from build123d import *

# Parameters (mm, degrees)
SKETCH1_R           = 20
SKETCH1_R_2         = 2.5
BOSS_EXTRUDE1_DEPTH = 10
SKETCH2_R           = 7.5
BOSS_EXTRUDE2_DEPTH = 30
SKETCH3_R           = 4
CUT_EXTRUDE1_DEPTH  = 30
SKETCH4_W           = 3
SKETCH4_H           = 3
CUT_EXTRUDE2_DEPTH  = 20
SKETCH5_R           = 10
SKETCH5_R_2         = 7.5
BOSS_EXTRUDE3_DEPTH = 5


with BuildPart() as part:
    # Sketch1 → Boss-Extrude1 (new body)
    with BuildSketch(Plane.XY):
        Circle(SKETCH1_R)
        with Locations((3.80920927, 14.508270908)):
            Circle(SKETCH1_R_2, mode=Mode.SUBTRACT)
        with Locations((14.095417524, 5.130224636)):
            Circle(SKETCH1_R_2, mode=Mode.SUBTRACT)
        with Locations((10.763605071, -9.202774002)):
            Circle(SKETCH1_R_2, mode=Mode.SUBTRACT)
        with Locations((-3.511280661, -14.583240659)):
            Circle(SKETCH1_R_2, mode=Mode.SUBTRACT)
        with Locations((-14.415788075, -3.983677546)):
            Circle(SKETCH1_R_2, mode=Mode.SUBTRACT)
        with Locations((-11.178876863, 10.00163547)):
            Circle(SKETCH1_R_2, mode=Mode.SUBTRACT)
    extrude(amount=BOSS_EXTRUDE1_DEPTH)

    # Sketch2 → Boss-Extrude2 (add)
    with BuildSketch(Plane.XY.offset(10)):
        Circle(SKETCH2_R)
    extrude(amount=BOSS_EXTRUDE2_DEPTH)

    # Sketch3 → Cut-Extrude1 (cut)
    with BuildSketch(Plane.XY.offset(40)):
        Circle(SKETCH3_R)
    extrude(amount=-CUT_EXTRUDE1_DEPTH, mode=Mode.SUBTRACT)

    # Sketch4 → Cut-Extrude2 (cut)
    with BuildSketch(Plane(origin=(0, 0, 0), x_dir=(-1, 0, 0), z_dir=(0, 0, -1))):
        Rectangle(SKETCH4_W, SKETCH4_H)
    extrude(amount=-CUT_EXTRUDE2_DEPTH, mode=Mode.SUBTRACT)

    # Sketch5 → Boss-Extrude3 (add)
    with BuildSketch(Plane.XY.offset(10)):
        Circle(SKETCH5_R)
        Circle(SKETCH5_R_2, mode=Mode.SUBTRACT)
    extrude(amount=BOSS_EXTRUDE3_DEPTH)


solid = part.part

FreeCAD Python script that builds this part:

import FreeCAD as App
import Part
import Sketcher


def add_polygon(sketch, points):
    """Adds a closed chain of lines whose ends are joined by coincident constraints."""
    first, n = sketch.GeometryCount, len(points)
    for a, b in zip(points, points[1:] + points[:1]):
        sketch.addGeometry(Part.LineSegment(App.Vector(*a, 0), App.Vector(*b, 0)), False)
    for i in range(n):
        sketch.addConstraint(Sketcher.Constraint("Coincident", first + i, 2, first + (i + 1) % n, 1))

doc = App.newDocument("Part")
params = doc.addObject("Spreadsheet::Sheet", "Params")
for row, (alias, value) in enumerate([
    ("sketch1_diameter", "40 mm"),
    ("sketch1_diameter2", "5 mm"),
    ("pad1_length", "10 mm"),
    ("sketch2_diameter", "15 mm"),
    ("pad2_length", "30 mm"),
    ("sketch3_diameter", "8 mm"),
    ("pocket1_length", "30 mm"),
    ("sketch4_width", "3 mm"),
    ("pocket2_length", "20 mm"),
    ("sketch5_diameter", "20 mm"),
    ("sketch5_diameter2", "15 mm"),
    ("pad3_length", "5 mm"),
], start=1):
    params.set(f"A{row}", alias)
    params.set(f"B{row}", "=" + value)
    params.setAlias(f"B{row}", alias)

body = doc.addObject("PartDesign::Body", "Body")

sketch1 = body.newObject("Sketcher::SketchObject", "Sketch")
sketch1.AttachmentSupport = (doc.getObject("XY_Plane"), [""])
sketch1.MapMode = "FlatFace"
sketch1.addGeometry(Part.Circle(App.Vector(0, 0, 0), App.Vector(0, 0, 1), 20), False)
sketch1.addGeometry(Part.Circle(App.Vector(-3.511281, -14.583241, 0), App.Vector(0, 0, 1), 2.5), False)
sketch1.addGeometry(Part.Circle(App.Vector(-14.415788, -3.983678, 0), App.Vector(0, 0, 1), 2.5), False)
sketch1.addGeometry(Part.Circle(App.Vector(10.763605, -9.202774, 0), App.Vector(0, 0, 1), 2.5), False)
sketch1.addGeometry(Part.Circle(App.Vector(-11.178877, 10.001635, 0), App.Vector(0, 0, 1), 2.5), False)
sketch1.addGeometry(Part.Circle(App.Vector(14.095418, 5.130225, 0), App.Vector(0, 0, 1), 2.5), False)
sketch1.addGeometry(Part.Circle(App.Vector(3.809209, 14.508271, 0), App.Vector(0, 0, 1), 2.5), False)
sketch1.addConstraint(Sketcher.Constraint("Coincident", 0, 3, -1, 1))
sketch1.addConstraint(Sketcher.Constraint("Equal", 1, 2))
sketch1.addConstraint(Sketcher.Constraint("Equal", 2, 3))
sketch1.addConstraint(Sketcher.Constraint("Equal", 3, 4))
sketch1.addConstraint(Sketcher.Constraint("Equal", 4, 5))
sketch1.addConstraint(Sketcher.Constraint("Equal", 5, 6))
sketch1.addConstraint(Sketcher.Constraint("Diameter", 0, 40.0))
sketch1.addConstraint(Sketcher.Constraint("Diameter", 1, 5.0))
sketch1.addConstraint(Sketcher.Constraint("DistanceY", 3, 3, 5, 3, 14.332999))
sketch1.addConstraint(Sketcher.Constraint("DistanceX", 1, 3, 5, 3, 17.606698))
sketch1.addConstraint(Sketcher.Constraint("DistanceX", 1, 3, -1, 1, 3.511281))
sketch1.addConstraint(Sketcher.Constraint("DistanceY", 1, 3, -1, 1, 14.583241))
sketch1.addConstraint(Sketcher.Constraint("DistanceX", 2, 3, -1, 1, 14.415788))
sketch1.addConstraint(Sketcher.Constraint("DistanceX", -1, 1, 6, 3, 3.809209))
sketch1.addConstraint(Sketcher.Constraint("DistanceY", -1, 1, 6, 3, 14.508271))
sketch1.addConstraint(Sketcher.Constraint("DistanceX", 2, 3, 4, 3, 3.236911))
sketch1.addConstraint(Sketcher.Constraint("DistanceX", 4, 3, 3, 3, 21.942482))
sketch1.addConstraint(Sketcher.Constraint("DistanceY", 3, 3, 4, 3, 19.204409))
sketch1.addConstraint(Sketcher.Constraint("DistanceY", 2, 3, 6, 3, 18.491948))
sketch1.addConstraint(Sketcher.Constraint("DistanceY", 3, 3, -1, 1, 9.202774))
sketch1.setExpression("Constraints[6]", "Params.sketch1_diameter")
sketch1.setExpression("Constraints[7]", "Params.sketch1_diameter2")
pad1 = body.newObject("PartDesign::Pad", "Pad")
pad1.Profile = sketch1
pad1.setExpression("Length", "Params.pad1_length")

sketch2 = body.newObject("Sketcher::SketchObject", "Sketch001")
sketch2.AttachmentSupport = (doc.getObject("XY_Plane"), [""])
sketch2.MapMode = "FlatFace"
sketch2.AttachmentOffset = App.Placement(App.Vector(0, 0, 10), App.Rotation())
sketch2.addGeometry(Part.Circle(App.Vector(0, 0, 0), App.Vector(0, 0, 1), 7.5), False)
sketch2.addConstraint(Sketcher.Constraint("Coincident", 0, 3, -1, 1))
sketch2.addConstraint(Sketcher.Constraint("Diameter", 0, 15.0))
sketch2.setExpression("Constraints[1]", "Params.sketch2_diameter")
pad2 = body.newObject("PartDesign::Pad", "Pad001")
pad2.Profile = sketch2
pad2.setExpression("Length", "Params.pad2_length")

sketch3 = body.newObject("Sketcher::SketchObject", "Sketch002")
sketch3.AttachmentSupport = (doc.getObject("XY_Plane"), [""])
sketch3.MapMode = "FlatFace"
sketch3.AttachmentOffset = App.Placement(App.Vector(0, 0, 40), App.Rotation())
sketch3.addGeometry(Part.Circle(App.Vector(0, 0, 0), App.Vector(0, 0, 1), 4), False)
sketch3.addConstraint(Sketcher.Constraint("Coincident", 0, 3, -1, 1))
sketch3.addConstraint(Sketcher.Constraint("Diameter", 0, 8.0))
sketch3.setExpression("Constraints[1]", "Params.sketch3_diameter")
pocket1 = body.newObject("PartDesign::Pocket", "Pocket")
pocket1.Profile = sketch3
pocket1.setExpression("Length", "Params.pocket1_length")

sketch4 = body.newObject("Sketcher::SketchObject", "Sketch003")
sketch4.AttachmentSupport = (doc.getObject("XY_Plane"), [""])
sketch4.MapMode = "FlatFace"
add_polygon(sketch4, [(1.5, 1.5), (1.5, -1.5), (-1.5, -1.5), (-1.5, 1.5)])
sketch4.addConstraint(Sketcher.Constraint("Vertical", 0))
sketch4.addConstraint(Sketcher.Constraint("Horizontal", 1))
sketch4.addConstraint(Sketcher.Constraint("Vertical", 2))
sketch4.addConstraint(Sketcher.Constraint("Horizontal", 3))
sketch4.addConstraint(Sketcher.Constraint("Symmetric", 0, 2, 2, 2, -1, 1))
sketch4.addConstraint(Sketcher.Constraint("Equal", 3, 0))
sketch4.addConstraint(Sketcher.Constraint("DistanceX", 1, 2, 1, 1, 3.0))
sketch4.setExpression("Constraints[10]", "Params.sketch4_width")
pocket2 = body.newObject("PartDesign::Pocket", "Pocket001")
pocket2.Profile = sketch4
pocket2.setExpression("Length", "Params.pocket2_length")
pocket2.Reversed = True

sketch5 = body.newObject("Sketcher::SketchObject", "Sketch004")
sketch5.AttachmentSupport = (doc.getObject("XY_Plane"), [""])
sketch5.MapMode = "FlatFace"
sketch5.AttachmentOffset = App.Placement(App.Vector(0, 0, 10), App.Rotation())
sketch5.addGeometry(Part.Circle(App.Vector(0, 0, 0), App.Vector(0, 0, 1), 10), False)
sketch5.addGeometry(Part.Circle(App.Vector(0, 0, 0), App.Vector(0, 0, 1), 7.5), False)
sketch5.addConstraint(Sketcher.Constraint("Coincident", 0, 3, -1, 1))
sketch5.addConstraint(Sketcher.Constraint("Coincident", 1, 3, -1, 1))
sketch5.addConstraint(Sketcher.Constraint("Diameter", 0, 20.0))
sketch5.addConstraint(Sketcher.Constraint("Diameter", 1, 15.0))
sketch5.setExpression("Constraints[2]", "Params.sketch5_diameter")
sketch5.setExpression("Constraints[3]", "Params.sketch5_diameter2")
pad3 = body.newObject("PartDesign::Pad", "Pad002")
pad3.Profile = sketch5
pad3.setExpression("Length", "Params.pad3_length")

doc.recompute()
